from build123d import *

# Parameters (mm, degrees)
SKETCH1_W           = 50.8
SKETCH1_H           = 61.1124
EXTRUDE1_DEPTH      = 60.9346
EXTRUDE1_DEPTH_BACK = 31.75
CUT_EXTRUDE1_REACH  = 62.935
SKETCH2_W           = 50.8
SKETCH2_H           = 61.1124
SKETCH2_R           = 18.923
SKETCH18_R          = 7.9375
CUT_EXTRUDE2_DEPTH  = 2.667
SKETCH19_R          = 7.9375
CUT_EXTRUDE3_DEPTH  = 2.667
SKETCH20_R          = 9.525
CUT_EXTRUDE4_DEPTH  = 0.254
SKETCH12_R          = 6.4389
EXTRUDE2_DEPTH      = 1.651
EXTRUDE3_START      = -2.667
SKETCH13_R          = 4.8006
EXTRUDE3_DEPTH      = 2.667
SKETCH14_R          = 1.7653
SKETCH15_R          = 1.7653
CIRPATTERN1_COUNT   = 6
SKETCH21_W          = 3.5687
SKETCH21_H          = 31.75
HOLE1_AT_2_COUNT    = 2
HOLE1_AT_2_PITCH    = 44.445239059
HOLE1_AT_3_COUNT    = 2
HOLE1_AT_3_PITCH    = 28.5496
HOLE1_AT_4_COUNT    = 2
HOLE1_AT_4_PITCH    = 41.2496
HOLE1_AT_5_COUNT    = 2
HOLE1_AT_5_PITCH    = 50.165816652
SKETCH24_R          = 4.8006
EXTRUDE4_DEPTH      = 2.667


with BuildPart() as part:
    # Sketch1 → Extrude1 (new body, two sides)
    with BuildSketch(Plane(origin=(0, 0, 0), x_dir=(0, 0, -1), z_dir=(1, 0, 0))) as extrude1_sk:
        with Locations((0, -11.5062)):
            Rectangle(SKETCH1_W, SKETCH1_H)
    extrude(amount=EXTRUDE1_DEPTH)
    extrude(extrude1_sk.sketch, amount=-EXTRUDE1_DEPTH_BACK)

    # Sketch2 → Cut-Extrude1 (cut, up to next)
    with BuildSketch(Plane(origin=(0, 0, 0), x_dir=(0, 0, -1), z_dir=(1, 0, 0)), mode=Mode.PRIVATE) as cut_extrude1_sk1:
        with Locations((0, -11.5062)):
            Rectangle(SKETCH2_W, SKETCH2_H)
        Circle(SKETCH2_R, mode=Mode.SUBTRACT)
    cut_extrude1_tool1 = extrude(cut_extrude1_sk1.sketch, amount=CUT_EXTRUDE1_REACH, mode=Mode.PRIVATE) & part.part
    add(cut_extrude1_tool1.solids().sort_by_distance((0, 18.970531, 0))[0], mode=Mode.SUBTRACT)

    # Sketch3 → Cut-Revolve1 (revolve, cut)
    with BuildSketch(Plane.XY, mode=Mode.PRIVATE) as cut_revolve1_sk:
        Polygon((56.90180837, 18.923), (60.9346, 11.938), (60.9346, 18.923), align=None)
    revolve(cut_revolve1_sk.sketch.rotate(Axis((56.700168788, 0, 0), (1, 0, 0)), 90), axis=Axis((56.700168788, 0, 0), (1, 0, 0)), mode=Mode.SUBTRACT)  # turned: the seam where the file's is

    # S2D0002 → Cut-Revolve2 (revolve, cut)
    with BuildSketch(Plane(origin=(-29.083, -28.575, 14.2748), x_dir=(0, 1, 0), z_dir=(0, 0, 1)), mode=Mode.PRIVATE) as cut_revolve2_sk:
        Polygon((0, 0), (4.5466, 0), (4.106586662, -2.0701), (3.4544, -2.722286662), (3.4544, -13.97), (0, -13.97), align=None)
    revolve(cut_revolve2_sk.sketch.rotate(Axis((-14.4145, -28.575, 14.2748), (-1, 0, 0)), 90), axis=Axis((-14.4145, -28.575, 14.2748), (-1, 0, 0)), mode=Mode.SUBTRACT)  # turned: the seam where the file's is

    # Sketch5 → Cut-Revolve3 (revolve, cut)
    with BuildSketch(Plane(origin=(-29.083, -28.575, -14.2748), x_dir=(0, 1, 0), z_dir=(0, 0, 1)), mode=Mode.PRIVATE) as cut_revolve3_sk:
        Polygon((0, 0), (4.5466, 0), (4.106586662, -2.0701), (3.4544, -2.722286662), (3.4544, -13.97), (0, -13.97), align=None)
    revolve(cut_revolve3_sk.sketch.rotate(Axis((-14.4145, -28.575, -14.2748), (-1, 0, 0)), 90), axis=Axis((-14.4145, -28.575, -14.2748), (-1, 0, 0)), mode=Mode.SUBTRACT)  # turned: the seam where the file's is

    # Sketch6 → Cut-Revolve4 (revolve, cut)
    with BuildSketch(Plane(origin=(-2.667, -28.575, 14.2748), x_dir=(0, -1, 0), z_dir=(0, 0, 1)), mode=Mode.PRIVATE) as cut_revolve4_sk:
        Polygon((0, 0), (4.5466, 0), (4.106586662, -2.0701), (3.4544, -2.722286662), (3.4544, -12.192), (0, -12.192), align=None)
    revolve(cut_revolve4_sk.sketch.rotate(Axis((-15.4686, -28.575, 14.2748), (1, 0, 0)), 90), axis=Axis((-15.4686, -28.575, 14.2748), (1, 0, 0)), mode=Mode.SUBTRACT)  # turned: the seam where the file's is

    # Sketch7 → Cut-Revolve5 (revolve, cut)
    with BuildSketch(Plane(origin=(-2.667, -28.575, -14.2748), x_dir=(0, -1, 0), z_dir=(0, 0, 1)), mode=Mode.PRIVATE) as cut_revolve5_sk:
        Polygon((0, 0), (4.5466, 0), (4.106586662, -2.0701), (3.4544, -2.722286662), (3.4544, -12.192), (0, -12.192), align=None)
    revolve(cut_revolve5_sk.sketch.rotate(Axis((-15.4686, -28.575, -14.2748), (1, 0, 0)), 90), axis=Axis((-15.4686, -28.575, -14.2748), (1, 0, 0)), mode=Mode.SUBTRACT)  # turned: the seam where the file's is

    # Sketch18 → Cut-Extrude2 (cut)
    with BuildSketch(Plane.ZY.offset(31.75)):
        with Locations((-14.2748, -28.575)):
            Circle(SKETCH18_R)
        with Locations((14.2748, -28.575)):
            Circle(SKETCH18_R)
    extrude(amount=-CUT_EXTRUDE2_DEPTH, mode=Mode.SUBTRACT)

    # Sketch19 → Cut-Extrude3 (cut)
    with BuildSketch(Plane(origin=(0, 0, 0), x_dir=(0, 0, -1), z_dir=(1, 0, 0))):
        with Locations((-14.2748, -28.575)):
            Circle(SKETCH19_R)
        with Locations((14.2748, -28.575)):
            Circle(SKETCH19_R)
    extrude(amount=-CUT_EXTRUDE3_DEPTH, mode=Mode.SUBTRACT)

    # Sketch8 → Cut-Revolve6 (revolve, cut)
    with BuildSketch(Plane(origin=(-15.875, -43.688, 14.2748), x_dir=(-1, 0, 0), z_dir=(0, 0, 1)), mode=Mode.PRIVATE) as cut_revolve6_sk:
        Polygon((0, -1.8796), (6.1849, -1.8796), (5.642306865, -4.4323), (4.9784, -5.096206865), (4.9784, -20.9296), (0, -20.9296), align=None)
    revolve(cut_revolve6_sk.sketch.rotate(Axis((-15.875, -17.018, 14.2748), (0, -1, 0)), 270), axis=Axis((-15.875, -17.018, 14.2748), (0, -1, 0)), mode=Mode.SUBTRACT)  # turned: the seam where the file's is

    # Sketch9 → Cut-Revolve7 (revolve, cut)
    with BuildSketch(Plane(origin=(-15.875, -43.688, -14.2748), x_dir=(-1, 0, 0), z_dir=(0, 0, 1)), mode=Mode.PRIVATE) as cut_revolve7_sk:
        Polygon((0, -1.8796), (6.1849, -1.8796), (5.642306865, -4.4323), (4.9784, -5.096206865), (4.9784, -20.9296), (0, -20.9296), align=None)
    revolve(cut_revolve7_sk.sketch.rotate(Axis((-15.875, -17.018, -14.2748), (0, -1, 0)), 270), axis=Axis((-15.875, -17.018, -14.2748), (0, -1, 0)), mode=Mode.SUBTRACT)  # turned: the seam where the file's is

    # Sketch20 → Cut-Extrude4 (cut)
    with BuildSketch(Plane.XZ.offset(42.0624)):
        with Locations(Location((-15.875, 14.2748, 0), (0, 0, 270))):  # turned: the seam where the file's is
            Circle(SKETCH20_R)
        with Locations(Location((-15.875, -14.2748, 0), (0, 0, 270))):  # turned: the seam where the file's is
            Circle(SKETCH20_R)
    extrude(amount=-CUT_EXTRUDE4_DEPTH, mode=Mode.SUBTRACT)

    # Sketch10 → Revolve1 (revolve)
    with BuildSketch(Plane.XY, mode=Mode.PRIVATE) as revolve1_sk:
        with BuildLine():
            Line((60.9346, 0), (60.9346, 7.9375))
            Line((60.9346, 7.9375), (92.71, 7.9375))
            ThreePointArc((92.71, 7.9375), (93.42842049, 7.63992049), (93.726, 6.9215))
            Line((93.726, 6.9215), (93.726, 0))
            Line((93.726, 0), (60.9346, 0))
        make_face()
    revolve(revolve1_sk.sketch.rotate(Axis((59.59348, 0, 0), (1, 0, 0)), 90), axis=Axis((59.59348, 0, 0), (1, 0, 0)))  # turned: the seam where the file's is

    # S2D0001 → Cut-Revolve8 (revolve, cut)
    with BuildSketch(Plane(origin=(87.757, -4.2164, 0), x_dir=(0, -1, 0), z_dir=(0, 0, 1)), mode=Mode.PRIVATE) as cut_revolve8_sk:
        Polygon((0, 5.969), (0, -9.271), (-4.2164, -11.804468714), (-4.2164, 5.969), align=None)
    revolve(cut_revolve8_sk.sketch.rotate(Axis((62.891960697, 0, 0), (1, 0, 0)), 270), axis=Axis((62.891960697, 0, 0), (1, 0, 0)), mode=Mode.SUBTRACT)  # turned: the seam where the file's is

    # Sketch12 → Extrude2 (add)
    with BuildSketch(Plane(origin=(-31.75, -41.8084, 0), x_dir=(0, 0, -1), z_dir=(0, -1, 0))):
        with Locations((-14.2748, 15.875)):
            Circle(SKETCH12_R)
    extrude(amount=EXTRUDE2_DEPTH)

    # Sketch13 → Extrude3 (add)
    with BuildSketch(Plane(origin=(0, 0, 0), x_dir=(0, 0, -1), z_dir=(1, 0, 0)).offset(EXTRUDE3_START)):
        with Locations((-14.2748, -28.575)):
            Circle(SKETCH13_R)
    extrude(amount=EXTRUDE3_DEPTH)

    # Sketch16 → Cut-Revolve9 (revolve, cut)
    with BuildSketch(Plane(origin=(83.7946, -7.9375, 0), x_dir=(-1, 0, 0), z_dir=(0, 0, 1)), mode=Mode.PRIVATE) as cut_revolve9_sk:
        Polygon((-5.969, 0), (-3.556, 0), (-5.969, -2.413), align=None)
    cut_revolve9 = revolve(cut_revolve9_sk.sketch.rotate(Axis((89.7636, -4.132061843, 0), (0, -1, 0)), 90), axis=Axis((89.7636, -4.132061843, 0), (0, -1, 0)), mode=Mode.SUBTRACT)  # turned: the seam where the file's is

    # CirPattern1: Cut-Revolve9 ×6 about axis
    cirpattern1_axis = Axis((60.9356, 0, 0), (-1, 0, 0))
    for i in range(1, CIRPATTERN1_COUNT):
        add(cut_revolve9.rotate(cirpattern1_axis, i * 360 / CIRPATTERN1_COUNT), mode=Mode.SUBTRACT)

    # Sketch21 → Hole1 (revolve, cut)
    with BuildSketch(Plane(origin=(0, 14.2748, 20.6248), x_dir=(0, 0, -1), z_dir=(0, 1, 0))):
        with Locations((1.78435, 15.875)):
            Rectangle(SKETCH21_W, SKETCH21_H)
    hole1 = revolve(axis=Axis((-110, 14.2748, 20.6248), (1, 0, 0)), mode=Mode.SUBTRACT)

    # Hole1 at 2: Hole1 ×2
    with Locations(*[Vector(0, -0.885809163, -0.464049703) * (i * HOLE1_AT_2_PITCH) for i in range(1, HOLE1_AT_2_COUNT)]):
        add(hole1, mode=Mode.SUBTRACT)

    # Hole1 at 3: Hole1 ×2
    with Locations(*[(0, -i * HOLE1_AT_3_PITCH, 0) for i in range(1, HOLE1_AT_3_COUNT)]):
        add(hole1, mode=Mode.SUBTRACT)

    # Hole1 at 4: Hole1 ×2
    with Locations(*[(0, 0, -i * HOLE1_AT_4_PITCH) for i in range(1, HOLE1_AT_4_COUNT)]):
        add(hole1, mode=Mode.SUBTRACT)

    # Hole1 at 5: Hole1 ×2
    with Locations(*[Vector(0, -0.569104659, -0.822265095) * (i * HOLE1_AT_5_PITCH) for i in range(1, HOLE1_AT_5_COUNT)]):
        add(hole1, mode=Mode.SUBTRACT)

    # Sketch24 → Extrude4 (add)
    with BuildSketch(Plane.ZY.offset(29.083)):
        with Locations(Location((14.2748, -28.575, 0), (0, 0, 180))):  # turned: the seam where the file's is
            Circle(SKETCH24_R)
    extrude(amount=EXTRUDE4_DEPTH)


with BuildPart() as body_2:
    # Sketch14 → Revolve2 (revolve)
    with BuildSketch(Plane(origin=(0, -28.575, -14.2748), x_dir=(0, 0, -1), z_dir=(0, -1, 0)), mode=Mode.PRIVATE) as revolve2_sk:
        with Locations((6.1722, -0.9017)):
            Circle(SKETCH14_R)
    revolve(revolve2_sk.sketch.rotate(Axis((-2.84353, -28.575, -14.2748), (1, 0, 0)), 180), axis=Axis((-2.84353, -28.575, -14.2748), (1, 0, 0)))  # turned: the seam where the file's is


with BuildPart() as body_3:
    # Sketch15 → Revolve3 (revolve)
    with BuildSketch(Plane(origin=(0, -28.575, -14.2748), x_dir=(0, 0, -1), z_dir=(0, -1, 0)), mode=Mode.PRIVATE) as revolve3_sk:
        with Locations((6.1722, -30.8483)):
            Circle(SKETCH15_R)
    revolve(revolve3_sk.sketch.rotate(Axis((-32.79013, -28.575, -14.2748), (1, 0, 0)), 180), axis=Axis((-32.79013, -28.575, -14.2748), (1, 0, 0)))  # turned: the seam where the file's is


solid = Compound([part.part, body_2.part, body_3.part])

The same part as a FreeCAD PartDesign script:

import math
import FreeCAD as App
import Part
import Sketcher
Q = App.Units.Quantity

doc = App.newDocument("Part")
body = doc.addObject("PartDesign::Body", "Body")

sketch1 = doc.addObject("Sketcher::SketchObject", "Sketch")
body.addObject(sketch1)
sketch1.AttachmentSupport = (doc.YZ_Plane, [""])
sketch1.MapMode = "FlatFace"
sketch1.addGeometry(Part.LineSegment(App.Vector(19.05, 25.4, 0), App.Vector(-42.0624, 25.4, 0)), False)
sketch1.addGeometry(Part.LineSegment(App.Vector(-42.0624, 25.4, 0), App.Vector(-42.0624, -25.4, 0)), False)
sketch1.addGeometry(Part.LineSegment(App.Vector(-42.0624, -25.4, 0), App.Vector(19.05, -25.4, 0)), False)
sketch1.addGeometry(Part.LineSegment(App.Vector(19.05, -25.4, 0), App.Vector(19.05, 25.4, 0)), False)
sketch1.addConstraint(Sketcher.Constraint("Coincident", 0, 2, 1, 1))
sketch1.addConstraint(Sketcher.Constraint("Coincident", 1, 2, 2, 1))
sketch1.addConstraint(Sketcher.Constraint("Coincident", 2, 2, 3, 1))
sketch1.addConstraint(Sketcher.Constraint("Coincident", 3, 2, 0, 1))
sketch1.addConstraint(Sketcher.Constraint("Horizontal", 0))
sketch1.addConstraint(Sketcher.Constraint("Vertical", 1))
sketch1.addConstraint(Sketcher.Constraint("Horizontal", 2))
sketch1.addConstraint(Sketcher.Constraint("Vertical", 3))
sketch1.addConstraint(Sketcher.Constraint("DistanceY", 1, 2, 1, 1, Q("2 in")))
sketch1.addConstraint(Sketcher.Constraint("DistanceY", -1, 1, 0, 2, Q("1 in")))
sketch1.addConstraint(Sketcher.Constraint("DistanceX", 0, 2, 0, 1, Q("2.406 in")))
sketch1.addConstraint(Sketcher.Constraint("DistanceX", -1, 1, 2, 2, Q("0.75 in")))
pad1 = doc.addObject("PartDesign::Pad", "Pad")
body.addObject(pad1)
pad1.Profile = sketch1
pad1.Type = "TwoLengths"
pad1.Length = Q("2.399 in")
pad1.Length2 = Q("1.25 in")

sketch2 = doc.addObject("Sketcher::SketchObject", "Sketch001")
body.addObject(sketch2)
sketch2.AttachmentSupport = (doc.YZ_Plane, [""])
sketch2.MapMode = "FlatFace"
sketch2.addGeometry(Part.LineSegment(App.Vector(19.05, 25.4, 0), App.Vector(-42.0624, 25.4, 0)), False)
sketch2.addGeometry(Part.LineSegment(App.Vector(-42.0624, 25.4, 0), App.Vector(-42.0624, -25.4, 0)), False)
sketch2.addGeometry(Part.LineSegment(App.Vector(-42.0624, -25.4, 0), App.Vector(19.05, -25.4, 0)), False)
sketch2.addGeometry(Part.LineSegment(App.Vector(19.05, -25.4, 0), App.Vector(19.05, 25.4, 0)), False)
sketch2.addGeometry(Part.Circle(App.Vector(0, 0, 0), App.Vector(0, 0, 1), 18.923), False)
sketch2.addConstraint(Sketcher.Constraint("Coincident", 0, 2, 1, 1))
sketch2.addConstraint(Sketcher.Constraint("Coincident", 1, 2, 2, 1))
sketch2.addConstraint(Sketcher.Constraint("Coincident", 2, 2, 3, 1))
sketch2.addConstraint(Sketcher.Constraint("Coincident", 3, 2, 0, 1))
sketch2.addConstraint(Sketcher.Constraint("Horizontal", 0))
sketch2.addConstraint(Sketcher.Constraint("Vertical", 1))
sketch2.addConstraint(Sketcher.Constraint("Horizontal", 2))
sketch2.addConstraint(Sketcher.Constraint("Vertical", 3))
sketch2.addConstraint(Sketcher.Constraint("Coincident", 4, 3, -1, 1))
sketch2.addConstraint(Sketcher.Constraint("Diameter", 4, Q("1.49 in")))
sketch2.addConstraint(Sketcher.Constraint("DistanceY", 1, 2, 1, 1, Q("2 in")))
sketch2.addConstraint(Sketcher.Constraint("DistanceY", -1, 1, 0, 2, Q("1 in")))
sketch2.addConstraint(Sketcher.Constraint("DistanceX", 0, 2, 0, 1, Q("2.406 in")))
sketch2.addConstraint(Sketcher.Constraint("DistanceX", -1, 1, 2, 2, Q("0.75 in")))
pocket1 = doc.addObject("PartDesign::Pocket", "Pocket")
body.addObject(pocket1)
pocket1.Profile = sketch2
pocket1.Type = "UpToFirst"
pocket1.Reversed = True

sketch3 = doc.addObject("Sketcher::SketchObject", "Sketch002")
body.addObject(sketch3)
sketch3.AttachmentSupport = (doc.XY_Plane, [""])
sketch3.MapMode = "FlatFace"
sketch3.addGeometry(Part.LineSegment(App.Vector(56.901808, 18.923, 0), App.Vector(60.9346, 11.938, 0)), False)
sketch3.addGeometry(Part.LineSegment(App.Vector(60.9346, 11.938, 0), App.Vector(60.9346, 18.923, 0)), False)
sketch3.addGeometry(Part.LineSegment(App.Vector(60.9346, 18.923, 0), App.Vector(56.901808, 18.923, 0)), False)
sketch3.addConstraint(Sketcher.Constraint("Coincident", 0, 2, 1, 1))
sketch3.addConstraint(Sketcher.Constraint("Coincident", 1, 2, 2, 1))
sketch3.addConstraint(Sketcher.Constraint("Coincident", 2, 2, 0, 1))
sketch3.addConstraint(Sketcher.Constraint("Vertical", 1))
sketch3.addConstraint(Sketcher.Constraint("Horizontal", 2))
sketch3.addConstraint(Sketcher.Constraint("Angle", 0, Q("-60 deg")))
sketch3.addConstraint(Sketcher.Constraint("DistanceY", 1, 1, 1, 2, Q("0.275 in")))
sketch3.addConstraint(Sketcher.Constraint("DistanceY", -1, 1, 0, 2, Q("0.47 in")))
sketch3.addConstraint(Sketcher.Constraint("DistanceX", -1, 1, 0, 2, Q("2.399 in")))
groove = doc.addObject("PartDesign::Groove", "Groove")
body.addObject(groove)
groove.Profile = sketch3
groove.ReferenceAxis = (sketch3, ["H_Axis"])
groove.Angle = 360

sketch4 = doc.addObject("Sketcher::SketchObject", "Sketch003")
body.addObject(sketch4)
sketch4.AttachmentSupport = (doc.XY_Plane, [""])
sketch4.MapMode = "FlatFace"
sketch4.AttachmentOffset = App.Placement(App.Vector(0, 0, 0.562 * 25.4), App.Rotation())
sketch4.addGeometry(Part.LineSegment(App.Vector(-29.083, -24.0284, 0), App.Vector(-29.083, -28.575, 0)), False)
sketch4.addGeometry(Part.LineSegment(App.Vector(-29.083, -28.575, 0), App.Vector(-15.113, -28.575, 0)), False)
sketch4.addGeometry(Part.LineSegment(App.Vector(-15.113, -28.575, 0), App.Vector(-15.113, -25.1206, 0)), False)
sketch4.addGeometry(Part.LineSegment(App.Vector(-15.113, -25.1206, 0), App.Vector(-26.360713, -25.1206, 0)), False)
sketch4.addGeometry(Part.LineSegment(App.Vector(-26.360713, -25.1206, 0), App.Vector(-27.0129, -24.468413, 0)), False)
sketch4.addGeometry(Part.LineSegment(App.Vector(-27.0129, -24.468413, 0), App.Vector(-29.083, -24.0284, 0)), False)
sketch4.addGeometry(Part.LineSegment(App.Vector(-15.113, -28.575, 0), App.Vector(-29.083, -28.575, 0)), True)
sketch4.addConstraint(Sketcher.Constraint("Coincident", 0, 2, 1, 1))
sketch4.addConstraint(Sketcher.Constraint("Coincident", 1, 2, 2, 1))
sketch4.addConstraint(Sketcher.Constraint("Coincident", 2, 2, 3, 1))
sketch4.addConstraint(Sketcher.Constraint("Coincident", 3, 2, 4, 1))
sketch4.addConstraint(Sketcher.Constraint("Coincident", 4, 2, 5, 1))
sketch4.addConstraint(Sketcher.Constraint("Coincident", 5, 2, 0, 1))
sketch4.addConstraint(Sketcher.Constraint("Vertical", 0))
sketch4.addConstraint(Sketcher.Constraint("Horizontal", 1))
sketch4.addConstraint(Sketcher.Constraint("Vertical", 2))
sketch4.addConstraint(Sketcher.Constraint("Horizontal", 3))
sketch4.addConstraint(Sketcher.Constraint("Horizontal", 6))
sketch4.addConstraint(Sketcher.Constraint("Coincident", 6, 1, 1, 2))
sketch4.addConstraint(Sketcher.Constraint("Vertical", 5, 2, 6, 2))
sketch4.addConstraint(Sketcher.Constraint("Angle", 4, Q("135 deg")))
sketch4.addConstraint(Sketcher.Constraint("Angle", 5, Q("168 deg")))
sketch4.addConstraint(Sketcher.Constraint("DistanceX", 1, 1, 1, 2, Q("0.55 in")))
sketch4.addConstraint(Sketcher.Constraint("DistanceY", 0, 2, 0, 1, Q("0.179 in")))
sketch4.addConstraint(Sketcher.Constraint("DistanceY", 2, 1, 2, 2, Q("0.136 in")))
sketch4.addConstraint(Sketcher.Constraint("DistanceX", 0, 2, -1, 1, Q("1.145 in")))
sketch4.addConstraint(Sketcher.Constraint("DistanceY", 0, 2, -1, 1, Q("1.125 in")))
sketch4.addConstraint(Sketcher.Constraint("DistanceX", 4, 2, -1, 1, Q("1.0635 in")))
groove2 = doc.addObject("PartDesign::Groove", "Groove001")
body.addObject(groove2)
groove2.Profile = sketch4
groove2.ReferenceAxis = (sketch4, ["Axis0"])
groove2.Angle = 360

sketch5 = doc.addObject("Sketcher::SketchObject", "Sketch004")
body.addObject(sketch5)
sketch5.AttachmentSupport = (doc.XY_Plane, [""])
sketch5.MapMode = "FlatFace"
sketch5.AttachmentOffset = App.Placement(App.Vector(0, 0, -0.562 * 25.4), App.Rotation())
sketch5.addGeometry(Part.LineSegment(App.Vector(-29.083, -24.0284, 0), App.Vector(-29.083, -28.575, 0)), False)
sketch5.addGeometry(Part.LineSegment(App.Vector(-29.083, -28.575, 0), App.Vector(-15.113, -28.575, 0)), False)
sketch5.addGeometry(Part.LineSegment(App.Vector(-15.113, -28.575, 0), App.Vector(-15.113, -25.1206, 0)), False)
sketch5.addGeometry(Part.LineSegment(App.Vector(-15.113, -25.1206, 0), App.Vector(-26.360713, -25.1206, 0)), False)
sketch5.addGeometry(Part.LineSegment(App.Vector(-26.360713, -25.1206, 0), App.Vector(-27.0129, -24.468413, 0)), False)
sketch5.addGeometry(Part.LineSegment(App.Vector(-27.0129, -24.468413, 0), App.Vector(-29.083, -24.0284, 0)), False)
sketch5.addGeometry(Part.LineSegment(App.Vector(-15.113, -28.575, 0), App.Vector(-29.083, -28.575, 0)), True)
sketch5.addConstraint(Sketcher.Constraint("Coincident", 0, 2, 1, 1))
sketch5.addConstraint(Sketcher.Constraint("Coincident", 1, 2, 2, 1))
sketch5.addConstraint(Sketcher.Constraint("Coincident", 2, 2, 3, 1))
sketch5.addConstraint(Sketcher.Constraint("Coincident", 3, 2, 4, 1))
sketch5.addConstraint(Sketcher.Constraint("Coincident", 4, 2, 5, 1))
sketch5.addConstraint(Sketcher.Constraint("Coincident", 5, 2, 0, 1))
sketch5.addConstraint(Sketcher.Constraint("Vertical", 0))
sketch5.addConstraint(Sketcher.Constraint("Horizontal", 1))
sketch5.addConstraint(Sketcher.Constraint("Vertical", 2))
sketch5.addConstraint(Sketcher.Constraint("Horizontal", 3))
sketch5.addConstraint(Sketcher.Constraint("Horizontal", 6))
sketch5.addConstraint(Sketcher.Constraint("Coincident", 6, 1, 1, 2))
sketch5.addConstraint(Sketcher.Constraint("Vertical", 5, 2, 6, 2))
sketch5.addConstraint(Sketcher.Constraint("Angle", 4, Q("135 deg")))
sketch5.addConstraint(Sketcher.Constraint("Angle", 5, Q("168 deg")))
sketch5.addConstraint(Sketcher.Constraint("DistanceX", 1, 1, 1, 2, Q("0.55 in")))
sketch5.addConstraint(Sketcher.Constraint("DistanceY", 0, 2, 0, 1, Q("0.179 in")))
sketch5.addConstraint(Sketcher.Constraint("DistanceY", 2, 1, 2, 2, Q("0.136 in")))
sketch5.addConstraint(Sketcher.Constraint("DistanceX", 0, 2, -1, 1, Q("1.145 in")))
sketch5.addConstraint(Sketcher.Constraint("DistanceY", 0, 2, -1, 1, Q("1.125 in")))
sketch5.addConstraint(Sketcher.Constraint("DistanceX", 4, 2, -1, 1, Q("1.0635 in")))
groove3 = doc.addObject("PartDesign::Groove", "Groove002")
body.addObject(groove3)
groove3.Profile = sketch5
groove3.ReferenceAxis = (sketch5, ["Axis0"])
groove3.Angle = 360

sketch6 = doc.addObject("Sketcher::SketchObject", "Sketch005")
body.addObject(sketch6)
sketch6.AttachmentSupport = (doc.XY_Plane, [""])
sketch6.MapMode = "FlatFace"
sketch6.AttachmentOffset = App.Placement(App.Vector(0, 0, 0.562 * 25.4), App.Rotation())
sketch6.addGeometry(Part.LineSegment(App.Vector(-2.667, -33.1216, 0), App.Vector(-2.667, -28.575, 0)), False)
sketch6.addGeometry(Part.LineSegment(App.Vector(-2.667, -28.575, 0), App.Vector(-14.859, -28.575, 0)), False)
sketch6.addGeometry(Part.LineSegment(App.Vector(-14.859, -28.575, 0), App.Vector(-14.859, -32.0294, 0)), False)
sketch6.addGeometry(Part.LineSegment(App.Vector(-14.859, -32.0294, 0), App.Vector(-5.389287, -32.0294, 0)), False)
sketch6.addGeometry(Part.LineSegment(App.Vector(-5.389287, -32.0294, 0), App.Vector(-4.7371, -32.681587, 0)), False)
sketch6.addGeometry(Part.LineSegment(App.Vector(-4.7371, -32.681587, 0), App.Vector(-2.667, -33.1216, 0)), False)
sketch6.addGeometry(Part.LineSegment(App.Vector(-14.859, -28.575, 0), App.Vector(-2.667, -28.575, 0)), True)
sketch6.addConstraint(Sketcher.Constraint("Coincident", 0, 2, 1, 1))
sketch6.addConstraint(Sketcher.Constraint("Coincident", 1, 2, 2, 1))
sketch6.addConstraint(Sketcher.Constraint("Coincident", 2, 2, 3, 1))
sketch6.addConstraint(Sketcher.Constraint("Coincident", 3, 2, 4, 1))
sketch6.addConstraint(Sketcher.Constraint("Coincident", 4, 2, 5, 1))
sketch6.addConstraint(Sketcher.Constraint("Coincident", 5, 2, 0, 1))
sketch6.addConstraint(Sketcher.Constraint("Vertical", 0))
sketch6.addConstraint(Sketcher.Constraint("Horizontal", 1))
sketch6.addConstraint(Sketcher.Constraint("Vertical", 2))
sketch6.addConstraint(Sketcher.Constraint("Horizontal", 3))
sketch6.addConstraint(Sketcher.Constraint("Horizontal", 6))
sketch6.addConstraint(Sketcher.Constraint("Coincident", 6, 1, 1, 2))
sketch6.addConstraint(Sketcher.Constraint("Vertical", 5, 2, 6, 2))
sketch6.addConstraint(Sketcher.Constraint("Angle", 4, Q("-45 deg")))
sketch6.addConstraint(Sketcher.Constraint("Angle", 5, Q("-12 deg")))
sketch6.addConstraint(Sketcher.Constraint("DistanceX", 1, 2, 1, 1, Q("0.48 in")))
sketch6.addConstraint(Sketcher.Constraint("DistanceY", 0, 1, 0, 2, Q("0.179 in")))
sketch6.addConstraint(Sketcher.Constraint("DistanceY", 2, 2, 2, 1, Q("0.136 in")))
sketch6.addConstraint(Sketcher.Constraint("DistanceX", 0, 2, -1, 1, Q("0.105 in")))
sketch6.addConstraint(Sketcher.Constraint("DistanceY", 0, 2, -1, 1, Q("1.125 in")))
sketch6.addConstraint(Sketcher.Constraint("DistanceX", 4, 2, -1, 1, Q("0.1865 in")))
groove4 = doc.addObject("PartDesign::Groove", "Groove003")
body.addObject(groove4)
groove4.Profile = sketch6
groove4.ReferenceAxis = (sketch6, ["Axis0"])
groove4.Angle = 360

sketch7 = doc.addObject("Sketcher::SketchObject", "Sketch006")
body.addObject(sketch7)
sketch7.AttachmentSupport = (doc.XY_Plane, [""])
sketch7.MapMode = "FlatFace"
sketch7.AttachmentOffset = App.Placement(App.Vector(0, 0, -0.562 * 25.4), App.Rotation())
sketch7.addGeometry(Part.LineSegment(App.Vector(-2.667, -33.1216, 0), App.Vector(-2.667, -28.575, 0)), False)
sketch7.addGeometry(Part.LineSegment(App.Vector(-2.667, -28.575, 0), App.Vector(-14.859, -28.575, 0)), False)
sketch7.addGeometry(Part.LineSegment(App.Vector(-14.859, -28.575, 0), App.Vector(-14.859, -32.0294, 0)), False)
sketch7.addGeometry(Part.LineSegment(App.Vector(-14.859, -32.0294, 0), App.Vector(-5.389287, -32.0294, 0)), False)
sketch7.addGeometry(Part.LineSegment(App.Vector(-5.389287, -32.0294, 0), App.Vector(-4.7371, -32.681587, 0)), False)
sketch7.addGeometry(Part.LineSegment(App.Vector(-4.7371, -32.681587, 0), App.Vector(-2.667, -33.1216, 0)), False)
sketch7.addGeometry(Part.LineSegment(App.Vector(-14.859, -28.575, 0), App.Vector(-2.667, -28.575, 0)), True)
sketch7.addConstraint(Sketcher.Constraint("Coincident", 0, 2, 1, 1))
sketch7.addConstraint(Sketcher.Constraint("Coincident", 1, 2, 2, 1))
sketch7.addConstraint(Sketcher.Constraint("Coincident", 2, 2, 3, 1))
sketch7.addConstraint(Sketcher.Constraint("Coincident", 3, 2, 4, 1))
sketch7.addConstraint(Sketcher.Constraint("Coincident", 4, 2, 5, 1))
sketch7.addConstraint(Sketcher.Constraint("Coincident", 5, 2, 0, 1))
sketch7.addConstraint(Sketcher.Constraint("Vertical", 0))
sketch7.addConstraint(Sketcher.Constraint("Horizontal", 1))
sketch7.addConstraint(Sketcher.Constraint("Vertical", 2))
sketch7.addConstraint(Sketcher.Constraint("Horizontal", 3))
sketch7.addConstraint(Sketcher.Constraint("Horizontal", 6))
sketch7.addConstraint(Sketcher.Constraint("Coincident", 6, 1, 1, 2))
sketch7.addConstraint(Sketcher.Constraint("Vertical", 5, 2, 6, 2))
sketch7.addConstraint(Sketcher.Constraint("Angle", 4, Q("-45 deg")))
sketch7.addConstraint(Sketcher.Constraint("Angle", 5, Q("-12 deg")))
sketch7.addConstraint(Sketcher.Constraint("DistanceX", 1, 2, 1, 1, Q("0.48 in")))
sketch7.addConstraint(Sketcher.Constraint("DistanceY", 0, 1, 0, 2, Q("0.179 in")))
sketch7.addConstraint(Sketcher.Constraint("DistanceY", 2, 2, 2, 1, Q("0.136 in")))
sketch7.addConstraint(Sketcher.Constraint("DistanceX", 0, 2, -1, 1, Q("0.105 in")))
sketch7.addConstraint(Sketcher.Constraint("DistanceY", 0, 2, -1, 1, Q("1.125 in")))
sketch7.addConstraint(Sketcher.Constraint("DistanceX", 4, 2, -1, 1, Q("0.1865 in")))
groove5 = doc.addObject("PartDesign::Groove", "Groove004")
body.addObject(groove5)
groove5.Profile = sketch7
groove5.ReferenceAxis = (sketch7, ["Axis0"])
groove5.Angle = 360

sketch8 = doc.addObject("Sketcher::SketchObject", "Sketch007")
body.addObject(sketch8)
sketch8.AttachmentSupport = (doc.YZ_Plane, [""])
sketch8.MapMode = "FlatFace"
sketch8.AttachmentOffset = App.Placement(App.Vector(0, 0, -1.25 * 25.4), App.Rotation())
sketch8.addGeometry(Part.Circle(App.Vector(-28.575, -14.2748, 0), App.Vector(0, 0, 1), 7.9375), False)
sketch8.addGeometry(Part.Circle(App.Vector(-28.575, 14.2748, 0), App.Vector(0, 0, 1), 7.9375), False)
sketch8.addConstraint(Sketcher.Constraint("Equal", 0, 1))
sketch8.addConstraint(Sketcher.Constraint("Symmetric", 0, 3, 1, 3, -1))
sketch8.addConstraint(Sketcher.Constraint("Diameter", 0, Q("0.625 in")))
sketch8.addConstraint(Sketcher.Constraint("DistanceX", 0, 3, -1, 1, Q("1.125 in")))
sketch8.addConstraint(Sketcher.Constraint("DistanceY", 0, 3, -1, 1, Q("0.562 in")))
pocket2 = doc.addObject("PartDesign::Pocket", "Pocket001")
body.addObject(pocket2)
pocket2.Profile = sketch8
pocket2.Length = Q("0.105 in")
pocket2.Reversed = True

sketch9 = doc.addObject("Sketcher::SketchObject", "Sketch008")
body.addObject(sketch9)
sketch9.AttachmentSupport = (doc.YZ_Plane, [""])
sketch9.MapMode = "FlatFace"
sketch9.addGeometry(Part.Circle(App.Vector(-28.575, 14.2748, 0), App.Vector(0, 0, 1), 7.9375), False)
sketch9.addGeometry(Part.Circle(App.Vector(-28.575, -14.2748, 0), App.Vector(0, 0, 1), 7.9375), False)
sketch9.addConstraint(Sketcher.Constraint("Equal", 0, 1))
sketch9.addConstraint(Sketcher.Constraint("Symmetric", 0, 3, 1, 3, -1))
sketch9.addConstraint(Sketcher.Constraint("Diameter", 0, Q("0.625 in")))
sketch9.addConstraint(Sketcher.Constraint("DistanceX", 0, 3, -1, 1, Q("1.125 in")))
sketch9.addConstraint(Sketcher.Constraint("DistanceY", -1, 1, 0, 3, Q("0.562 in")))
pocket3 = doc.addObject("PartDesign::Pocket", "Pocket002")
body.addObject(pocket3)
pocket3.Profile = sketch9
pocket3.Length = Q("0.105 in")

sketch10 = doc.addObject("Sketcher::SketchObject", "Sketch009")
body.addObject(sketch10)
sketch10.AttachmentSupport = (doc.XY_Plane, [""])
sketch10.MapMode = "FlatFace"
sketch10.AttachmentOffset = App.Placement(App.Vector(0, 0, 0.562 * 25.4), App.Rotation())
sketch10.addGeometry(Part.LineSegment(App.Vector(-22.0599, -41.8084, 0), App.Vector(-15.875, -41.8084, 0)), False)
sketch10.addGeometry(Part.LineSegment(App.Vector(-15.875, -41.8084, 0), App.Vector(-15.875, -22.7584, 0)), False)
sketch10.addGeometry(Part.LineSegment(App.Vector(-15.875, -22.7584, 0), App.Vector(-20.8534, -22.7584, 0)), False)
sketch10.addGeometry(Part.LineSegment(App.Vector(-20.8534, -22.7584, 0), App.Vector(-20.8534, -38.591793, 0)), False)
sketch10.addGeometry(Part.LineSegment(App.Vector(-20.8534, -38.591793, 0), App.Vector(-21.517307, -39.2557, 0)), False)
sketch10.addGeometry(Part.LineSegment(App.Vector(-21.517307, -39.2557, 0), App.Vector(-22.0599, -41.8084, 0)), False)
sketch10.addGeometry(Part.LineSegment(App.Vector(-15.875, -22.7584, 0), App.Vector(-15.875, -41.8084, 0)), True)
sketch10.addConstraint(Sketcher.Constraint("Coincident", 0, 2, 1, 1))
sketch10.addConstraint(Sketcher.Constraint("Coincident", 1, 2, 2, 1))
sketch10.addConstraint(Sketcher.Constraint("Coincident", 2, 2, 3, 1))
sketch10.addConstraint(Sketcher.Constraint("Coincident", 3, 2, 4, 1))
sketch10.addConstraint(Sketcher.Constraint("Coincident", 4, 2, 5, 1))
sketch10.addConstraint(Sketcher.Constraint("Coincident", 5, 2, 0, 1))
sketch10.addConstraint(Sketcher.Constraint("Horizontal", 0))
sketch10.addConstraint(Sketcher.Constraint("Vertical", 1))
sketch10.addConstraint(Sketcher.Constraint("Horizontal", 2))
sketch10.addConstraint(Sketcher.Constraint("Vertical", 3))
sketch10.addConstraint(Sketcher.Constraint("Vertical", 6))
sketch10.addConstraint(Sketcher.Constraint("Coincident", 6, 1, 1, 2))
sketch10.addConstraint(Sketcher.Constraint("Horizontal", 5, 2, 6, 2))
sketch10.addConstraint(Sketcher.Constraint("Angle", 4, Q("-135 deg")))
sketch10.addConstraint(Sketcher.Constraint("Angle", 5, Q("-102 deg")))
sketch10.addConstraint(Sketcher.Constraint("DistanceY", 1, 1, 1, 2, Q("0.75 in")))
sketch10.addConstraint(Sketcher.Constraint("DistanceX", 2, 2, 2, 1, Q("0.196 in")))
sketch10.addConstraint(Sketcher.Constraint("DistanceX", 0, 1, 0, 2, Q("0.2435 in")))
sketch10.addConstraint(Sketcher.Constraint("DistanceX", 0, 2, -1, 1, Q("0.625 in")))
sketch10.addConstraint(Sketcher.Constraint("DistanceY", 0, 2, -1, 1, Q("1.646 in")))
sketch10.addConstraint(Sketcher.Constraint("DistanceY", 4, 2, -1, 1, Q("1.5455 in")))
groove6 = doc.addObject("PartDesign::Groove", "Groove005")
body.addObject(groove6)
groove6.Profile = sketch10
groove6.ReferenceAxis = (sketch10, ["Axis0"])
groove6.Angle = 360

sketch11 = doc.addObject("Sketcher::SketchObject", "Sketch010")
body.addObject(sketch11)
sketch11.AttachmentSupport = (doc.XY_Plane, [""])
sketch11.MapMode = "FlatFace"
sketch11.AttachmentOffset = App.Placement(App.Vector(0, 0, -0.562 * 25.4), App.Rotation())
sketch11.addGeometry(Part.LineSegment(App.Vector(-22.0599, -41.8084, 0), App.Vector(-15.875, -41.8084, 0)), False)
sketch11.addGeometry(Part.LineSegment(App.Vector(-15.875, -41.8084, 0), App.Vector(-15.875, -22.7584, 0)), False)
sketch11.addGeometry(Part.LineSegment(App.Vector(-15.875, -22.7584, 0), App.Vector(-20.8534, -22.7584, 0)), False)
sketch11.addGeometry(Part.LineSegment(App.Vector(-20.8534, -22.7584, 0), App.Vector(-20.8534, -38.591793, 0)), False)
sketch11.addGeometry(Part.LineSegment(App.Vector(-20.8534, -38.591793, 0), App.Vector(-21.517307, -39.2557, 0)), False)
sketch11.addGeometry(Part.LineSegment(App.Vector(-21.517307, -39.2557, 0), App.Vector(-22.0599, -41.8084, 0)), False)
sketch11.addGeometry(Part.LineSegment(App.Vector(-15.875, -22.7584, 0), App.Vector(-15.875, -41.8084, 0)), True)
sketch11.addConstraint(Sketcher.Constraint("Coincident", 0, 2, 1, 1))
sketch11.addConstraint(Sketcher.Constraint("Coincident", 1, 2, 2, 1))
sketch11.addConstraint(Sketcher.Constraint("Coincident", 2, 2, 3, 1))
sketch11.addConstraint(Sketcher.Constraint("Coincident", 3, 2, 4, 1))
sketch11.addConstraint(Sketcher.Constraint("Coincident", 4, 2, 5, 1))
sketch11.addConstraint(Sketcher.Constraint("Coincident", 5, 2, 0, 1))
sketch11.addConstraint(Sketcher.Constraint("Horizontal", 0))
sketch11.addConstraint(Sketcher.Constraint("Vertical", 1))
sketch11.addConstraint(Sketcher.Constraint("Horizontal", 2))
sketch11.addConstraint(Sketcher.Constraint("Vertical", 3))
sketch11.addConstraint(Sketcher.Constraint("Vertical", 6))
sketch11.addConstraint(Sketcher.Constraint("Coincident", 6, 1, 1, 2))
sketch11.addConstraint(Sketcher.Constraint("Horizontal", 5, 2, 6, 2))
sketch11.addConstraint(Sketcher.Constraint("Angle", 4, Q("-135 deg")))
sketch11.addConstraint(Sketcher.Constraint("Angle", 5, Q("-102 deg")))
sketch11.addConstraint(Sketcher.Constraint("DistanceY", 1, 1, 1, 2, Q("0.75 in")))
sketch11.addConstraint(Sketcher.Constraint("DistanceX", 2, 2, 2, 1, Q("0.196 in")))
sketch11.addConstraint(Sketcher.Constraint("DistanceX", 0, 1, 0, 2, Q("0.2435 in")))
sketch11.addConstraint(Sketcher.Constraint("DistanceX", 0, 2, -1, 1, Q("0.625 in")))
sketch11.addConstraint(Sketcher.Constraint("DistanceY", 0, 2, -1, 1, Q("1.646 in")))
sketch11.addConstraint(Sketcher.Constraint("DistanceY", 4, 2, -1, 1, Q("1.5455 in")))
groove7 = doc.addObject("PartDesign::Groove", "Groove006")
body.addObject(groove7)
groove7.Profile = sketch11
groove7.ReferenceAxis = (sketch11, ["Axis0"])
groove7.Angle = 360

sketch12 = doc.addObject("Sketcher::SketchObject", "Sketch011")
body.addObject(sketch12)
sketch12.AttachmentSupport = (doc.XZ_Plane, [""])
sketch12.MapMode = "FlatFace"
sketch12.AttachmentOffset = App.Placement(App.Vector(0, 0, 1.656 * 25.4), App.Rotation())
sketch12.addGeometry(Part.Circle(App.Vector(-15.875, 14.2748, 0), App.Vector(0, 0, 1), 9.525), False)
sketch12.addGeometry(Part.Circle(App.Vector(-15.875, -14.2748, 0), App.Vector(0, 0, 1), 9.525), False)
sketch12.addConstraint(Sketcher.Constraint("Equal", 0, 1))
sketch12.addConstraint(Sketcher.Constraint("Symmetric", 0, 3, 1, 3, -1))
sketch12.addConstraint(Sketcher.Constraint("Diameter", 0, Q("0.75 in")))
sketch12.addConstraint(Sketcher.Constraint("DistanceX", 0, 3, -1, 1, Q("0.625 in")))
sketch12.addConstraint(Sketcher.Constraint("DistanceY", -1, 1, 0, 3, Q("0.562 in")))
pocket4 = doc.addObject("PartDesign::Pocket", "Pocket003")
body.addObject(pocket4)
pocket4.Profile = sketch12
pocket4.Length = Q("0.01 in")

sketch13 = doc.addObject("Sketcher::SketchObject", "Sketch012")
body.addObject(sketch13)
sketch13.AttachmentSupport = (doc.XY_Plane, [""])
sketch13.MapMode = "FlatFace"
sketch13.addGeometry(Part.LineSegment(App.Vector(60.9346, 7.9375, 0), App.Vector(60.9346, 0, 0)), False)
sketch13.addGeometry(Part.LineSegment(App.Vector(60.9346, 0, 0), App.Vector(93.726, 0, 0)), False)
sketch13.addGeometry(Part.LineSegment(App.Vector(93.726, 0, 0), App.Vector(93.726, 6.9215, 0)), False)
sketch13.addGeometry(Part.ArcOfCircle(Part.Circle(App.Vector(92.71, 6.9215, 0), App.Vector(0, 0, 1), 1.016), math.radians(0), math.radians(90)), False)
sketch13.addGeometry(Part.LineSegment(App.Vector(92.71, 7.9375, 0), App.Vector(60.9346, 7.9375, 0)), False)
sketch13.addConstraint(Sketcher.Constraint("Coincident", 0, 2, 1, 1))
sketch13.addConstraint(Sketcher.Constraint("Coincident", 1, 2, 2, 1))
sketch13.addConstraint(Sketcher.Constraint("Tangent", 2, 2, 3, 1))
sketch13.addConstraint(Sketcher.Constraint("Tangent", 3, 2, 4, 1))
sketch13.addConstraint(Sketcher.Constraint("Coincident", 4, 2, 0, 1))
sketch13.addConstraint(Sketcher.Constraint("Vertical", 0))
sketch13.addConstraint(Sketcher.Constraint("Horizontal", 1))
sketch13.addConstraint(Sketcher.Constraint("Vertical", 2))
sketch13.addConstraint(Sketcher.Constraint("Horizontal", 4))
sketch13.addConstraint(Sketcher.Constraint("PointOnObject", 0, 2, -1))
sketch13.addConstraint(Sketcher.Constraint("Radius", 3, Q("0.04 in")))
sketch13.addConstraint(Sketcher.Constraint("DistanceX", 1, 1, 1, 2, Q("1.291 in")))
sketch13.addConstraint(Sketcher.Constraint("DistanceY", 0, 2, 0, 1, Q("0.3125 in")))
sketch13.addConstraint(Sketcher.Constraint("DistanceX", -1, 1, 3, 3, Q("3.65 in")))
revolution = doc.addObject("PartDesign::Revolution", "Revolution")
body.addObject(revolution)
revolution.Profile = sketch13
revolution.ReferenceAxis = (sketch13, ["H_Axis"])
revolution.Angle = 360

sketch14 = doc.addObject("Sketcher::SketchObject", "Sketch013")
body.addObject(sketch14)
sketch14.AttachmentSupport = (doc.XY_Plane, [""])
sketch14.MapMode = "FlatFace"
sketch14.addGeometry(Part.LineSegment(App.Vector(78.486, -4.2164, 0), App.Vector(93.726, -4.2164, 0)), False)
sketch14.addGeometry(Part.LineSegment(App.Vector(93.726, -4.2164, 0), App.Vector(93.726, 0, 0)), False)
sketch14.addGeometry(Part.LineSegment(App.Vector(93.726, 0, 0), App.Vector(75.952531, 0, 0)), False)
sketch14.addGeometry(Part.LineSegment(App.Vector(75.952531, 0, 0), App.Vector(78.486, -4.2164, 0)), False)
sketch14.addConstraint(Sketcher.Constraint("Coincident", 0, 2, 1, 1))
sketch14.addConstraint(Sketcher.Constraint("Coincident", 1, 2, 2, 1))
sketch14.addConstraint(Sketcher.Constraint("Coincident", 2, 2, 3, 1))
sketch14.addConstraint(Sketcher.Constraint("Coincident", 3, 2, 0, 1))
sketch14.addConstraint(Sketcher.Constraint("Horizontal", 0))
sketch14.addConstraint(Sketcher.Constraint("Vertical", 1))
sketch14.addConstraint(Sketcher.Constraint("Horizontal", 2))
sketch14.addConstraint(Sketcher.Constraint("PointOnObject", 1, 2, -1))
sketch14.addConstraint(Sketcher.Constraint("DistanceX", 0, 1, 0, 2, Q("0.6 in")))
sketch14.addConstraint(Sketcher.Constraint("Angle", 3, Q("-59 deg")))
sketch14.addConstraint(Sketcher.Constraint("DistanceY", 1, 1, 1, 2, Q("0.166 in")))
sketch14.addConstraint(Sketcher.Constraint("DistanceX", -1, 1, 0, 2, Q("3.69 in")))
groove8 = doc.addObject("PartDesign::Groove", "Groove007")
body.addObject(groove8)
groove8.Profile = sketch14
groove8.ReferenceAxis = (sketch14, ["H_Axis"])
groove8.Angle = 360

sketch15 = doc.addObject("Sketcher::SketchObject", "Sketch014")
body.addObject(sketch15)
sketch15.AttachmentSupport = (doc.XZ_Plane, [""])
sketch15.MapMode = "FlatFace"
sketch15.AttachmentOffset = App.Placement(App.Vector(0, 0, 1.646 * 25.4), App.Rotation())
sketch15.addGeometry(Part.Circle(App.Vector(-15.875, 14.2748, 0), App.Vector(0, 0, 1), 6.4389), False)
sketch15.addConstraint(Sketcher.Constraint("Diameter", 0, Q("0.507 in")))
sketch15.addConstraint(Sketcher.Constraint("DistanceX", 0, 3, -1, 1, Q("0.625 in")))
sketch15.addConstraint(Sketcher.Constraint("DistanceY", -1, 1, 0, 3, Q("0.562 in")))
pad2 = doc.addObject("PartDesign::Pad", "Pad001")
body.addObject(pad2)
pad2.Profile = sketch15
pad2.Length = Q("0.065 in")

sketch16 = doc.addObject("Sketcher::SketchObject", "Sketch015")
body.addObject(sketch16)
sketch16.AttachmentSupport = (doc.YZ_Plane, [""])
sketch16.MapMode = "FlatFace"
sketch16.AttachmentOffset = App.Placement(App.Vector(0, 0, -0.105 * 25.4), App.Rotation())
sketch16.addGeometry(Part.Circle(App.Vector(-28.575, 14.2748, 0), App.Vector(0, 0, 1), 4.8006), False)
sketch16.addConstraint(Sketcher.Constraint("Diameter", 0, Q("0.378 in")))
sketch16.addConstraint(Sketcher.Constraint("DistanceX", 0, 3, -1, 1, Q("1.125 in")))
sketch16.addConstraint(Sketcher.Constraint("DistanceY", -1, 1, 0, 3, Q("0.562 in")))
pad3 = doc.addObject("PartDesign::Pad", "Pad002")
body.addObject(pad3)
pad3.Profile = sketch16
pad3.Length = Q("0.105 in")

sketch17 = doc.addObject("Sketcher::SketchObject", "Sketch016")
body.addObject(sketch17)
sketch17.AttachmentSupport = (doc.XY_Plane, [""])
sketch17.MapMode = "FlatFace"
sketch17.addGeometry(Part.LineSegment(App.Vector(87.3506, -7.9375, 0), App.Vector(89.7636, -7.9375, 0)), False)
sketch17.addGeometry(Part.LineSegment(App.Vector(89.7636, -7.9375, 0), App.Vector(89.7636, -5.5245, 0)), False)
sketch17.addGeometry(Part.LineSegment(App.Vector(89.7636, -5.5245, 0), App.Vector(87.3506, -7.9375, 0)), False)
sketch17.addGeometry(Part.LineSegment(App.Vector(89.7636, -5.5245, 0), App.Vector(89.7636, -7.9375, 0)), True)
sketch17.addConstraint(Sketcher.Constraint("Coincident", 0, 2, 1, 1))
sketch17.addConstraint(Sketcher.Constraint("Coincident", 1, 2, 2, 1))
sketch17.addConstraint(Sketcher.Constraint("Coincident", 2, 2, 0, 1))
sketch17.addConstraint(Sketcher.Constraint("Horizontal", 0))
sketch17.addConstraint(Sketcher.Constraint("Vertical", 1))
sketch17.addConstraint(Sketcher.Constraint("Vertical", 3))
sketch17.addConstraint(Sketcher.Constraint("Coincident", 3, 1, 1, 2))
sketch17.addConstraint(Sketcher.Constraint("Horizontal", 2, 2, 3, 2))
sketch17.addConstraint(Sketcher.Constraint("Equal", 0, 1))
sketch17.addConstraint(Sketcher.Constraint("DistanceX", 0, 1, 0, 2, Q("0.095 in")))
sketch17.addConstraint(Sketcher.Constraint("DistanceX", -1, 1, 0, 2, Q("3.534 in")))
sketch17.addConstraint(Sketcher.Constraint("DistanceY", 0, 2, -1, 1, Q("0.3125 in")))
groove9 = doc.addObject("PartDesign::Groove", "Groove008")
body.addObject(groove9)
groove9.Profile = sketch17
groove9.ReferenceAxis = (sketch17, ["Axis0"])
groove9.Angle = 360
doc.recompute()

polarpattern = doc.addObject("PartDesign::PolarPattern", "PolarPattern")
body.addObject(polarpattern)
polarpattern.Originals = [groove9]
polarpattern.Axis = (doc.X_Axis, [""])
polarpattern.Angle = 360
polarpattern.Occurrences = 6
body.Tip = polarpattern

sketch18 = doc.addObject("Sketcher::SketchObject", "Sketch017")
body.addObject(sketch18)
sketch18.AttachmentSupport = (doc.XZ_Plane, [""])
sketch18.MapMode = "FlatFace"
sketch18.AttachmentOffset = App.Placement(App.Vector(0, 0, -0.562 * 25.4), App.Rotation())
sketch18.addGeometry(Part.LineSegment(App.Vector(-31.75, 20.6248, 0), App.Vector(0, 20.6248, 0)), False)
sketch18.addGeometry(Part.LineSegment(App.Vector(0, 20.6248, 0), App.Vector(0, 17.0561, 0)), False)
sketch18.addGeometry(Part.LineSegment(App.Vector(0, 17.0561, 0), App.Vector(-31.75, 17.0561, 0)), False)
sketch18.addGeometry(Part.LineSegment(App.Vector(-31.75, 17.0561, 0), App.Vector(-31.75, 20.6248, 0)), False)
sketch18.addGeometry(Part.LineSegment(App.Vector(-31.75, 20.6248, 0), App.Vector(0, 20.6248, 0)), True)
sketch18.addConstraint(Sketcher.Constraint("Coincident", 0, 2, 1, 1))
sketch18.addConstraint(Sketcher.Constraint("Coincident", 1, 2, 2, 1))
sketch18.addConstraint(Sketcher.Constraint("Coincident", 2, 2, 3, 1))
sketch18.addConstraint(Sketcher.Constraint("Coincident", 3, 2, 0, 1))
sketch18.addConstraint(Sketcher.Constraint("Horizontal", 0))
sketch18.addConstraint(Sketcher.Constraint("Vertical", 1))
sketch18.addConstraint(Sketcher.Constraint("Horizontal", 2))
sketch18.addConstraint(Sketcher.Constraint("Vertical", 3))
sketch18.addConstraint(Sketcher.Constraint("Horizontal", 4))
sketch18.addConstraint(Sketcher.Constraint("Coincident", 4, 1, 3, 2))
sketch18.addConstraint(Sketcher.Constraint("PointOnObject", 0, 2, -2))
sketch18.addConstraint(Sketcher.Constraint("PointOnObject", 4, 2, -2))
sketch18.addConstraint(Sketcher.Constraint("DistanceX", 0, 1, 0, 2, Q("1.25 in")))
sketch18.addConstraint(Sketcher.Constraint("DistanceY", 1, 2, 1, 1, Q("0.1405 in")))
sketch18.addConstraint(Sketcher.Constraint("DistanceY", -1, 1, 0, 2, Q("0.812 in")))
groove10 = doc.addObject("PartDesign::Groove", "Groove009")
body.addObject(groove10)
groove10.Profile = sketch18
groove10.ReferenceAxis = (sketch18, ["Axis0"])
groove10.Angle = 360
doc.recompute()

datumline = doc.addObject("PartDesign::Line", "DatumLine")
body.addObject(datumline)
datumline.Placement = App.Placement(App.Vector(0, 0, 0), App.Rotation(App.Vector(0, 0, 1), App.Vector(0, -0.885809163, -0.464049703)))
linearpattern = doc.addObject("PartDesign::LinearPattern", "LinearPattern")
body.addObject(linearpattern)
linearpattern.Originals = [groove10]
linearpattern.Direction = (datumline, [""])
linearpattern.Mode = "offset"
linearpattern.Offset = 44.445239
linearpattern.Occurrences = 2
body.Tip = linearpattern
doc.recompute()

linearpattern2 = doc.addObject("PartDesign::LinearPattern", "LinearPattern001")
body.addObject(linearpattern2)
linearpattern2.Originals = [groove10]
linearpattern2.Direction = (doc.Y_Axis, [""])
linearpattern2.Mode = "offset"
linearpattern2.Offset = Q("1.124 in")
linearpattern2.Occurrences = 2
linearpattern2.Reversed = True
body.Tip = linearpattern2
doc.recompute()

linearpattern3 = doc.addObject("PartDesign::LinearPattern", "LinearPattern002")
body.addObject(linearpattern3)
linearpattern3.Originals = [groove10]
linearpattern3.Direction = (doc.Z_Axis, [""])
linearpattern3.Mode = "offset"
linearpattern3.Offset = Q("1.624 in")
linearpattern3.Occurrences = 2
linearpattern3.Reversed = True
body.Tip = linearpattern3
doc.recompute()

datumline2 = doc.addObject("PartDesign::Line", "DatumLine001")
body.addObject(datumline2)
datumline2.Placement = App.Placement(App.Vector(0, 0, 0), App.Rotation(App.Vector(0, 0, 1), App.Vector(0, -0.569104659, -0.822265095)))
linearpattern4 = doc.addObject("PartDesign::LinearPattern", "LinearPattern003")
body.addObject(linearpattern4)
linearpattern4.Originals = [groove10]
linearpattern4.Direction = (datumline2, [""])
linearpattern4.Mode = "offset"
linearpattern4.Offset = 50.165817
linearpattern4.Occurrences = 2
body.Tip = linearpattern4

sketch19 = doc.addObject("Sketcher::SketchObject", "Sketch018")
body.addObject(sketch19)
sketch19.AttachmentSupport = (doc.YZ_Plane, [""])
sketch19.MapMode = "FlatFace"
sketch19.AttachmentOffset = App.Placement(App.Vector(0, 0, -1.145 * 25.4), App.Rotation())
sketch19.addGeometry(Part.Circle(App.Vector(-28.575, 14.2748, 0), App.Vector(0, 0, 1), 4.8006), False)
sketch19.addConstraint(Sketcher.Constraint("Diameter", 0, Q("0.378 in")))
sketch19.addConstraint(Sketcher.Constraint("DistanceX", 0, 3, -1, 1, Q("1.125 in")))
sketch19.addConstraint(Sketcher.Constraint("DistanceY", -1, 1, 0, 3, Q("0.562 in")))
pad4 = doc.addObject("PartDesign::Pad", "Pad003")
body.addObject(pad4)
pad4.Profile = sketch19
pad4.Length = Q("0.105 in")
pad4.Reversed = True
body2 = doc.addObject("PartDesign::Body", "Body001")

sketch20 = doc.addObject("Sketcher::SketchObject", "Sketch019")
body2.addObject(sketch20)
sketch20.AttachmentSupport = (doc.getObject("XZ_Plane001"), [""])
sketch20.MapMode = "FlatFace"
sketch20.AttachmentOffset = App.Placement(App.Vector(0, 0, 1.125 * 25.4), App.Rotation())
sketch20.addGeometry(Part.Circle(App.Vector(-0.9017, -20.447, 0), App.Vector(0, 0, 1), 1.7653), False)
sketch20.addGeometry(Part.LineSegment(App.Vector(-0.9017, -14.2748, 0), App.Vector(9.0983, -14.2748, 0)), True)
sketch20.addConstraint(Sketcher.Constraint("Horizontal", 1))
sketch20.addConstraint(Sketcher.Constraint("Vertical", 0, 3, 1, 1))
sketch20.addConstraint(Sketcher.Constraint("Diameter", 0, Q("0.139 in")))
sketch20.addConstraint(Sketcher.Constraint("DistanceY", 0, 3, -1, 1, Q("0.805 in")))
sketch20.addConstraint(Sketcher.Constraint("DistanceY", 1, 1, -1, 1, Q("0.562 in")))
sketch20.addConstraint(Sketcher.Constraint("DistanceX", 1, 1, 1, 2, 10.0))
sketch20.addConstraint(Sketcher.Constraint("DistanceX", 0, 3, -1, 1, Q("0.0355 in")))
revolution2 = doc.addObject("PartDesign::Revolution", "Revolution001")
body2.addObject(revolution2)
revolution2.Profile = sketch20
revolution2.ReferenceAxis = (sketch20, ["Axis0"])
revolution2.Angle = 360
body3 = doc.addObject("PartDesign::Body", "Body002")

sketch21 = doc.addObject("Sketcher::SketchObject", "Sketch020")
body3.addObject(sketch21)
sketch21.AttachmentSupport = (doc.getObject("XZ_Plane002"), [""])
sketch21.MapMode = "FlatFace"
sketch21.AttachmentOffset = App.Placement(App.Vector(0, 0, 1.125 * 25.4), App.Rotation())
sketch21.addGeometry(Part.Circle(App.Vector(-30.8483, -20.447, 0), App.Vector(0, 0, 1), 1.7653), False)
sketch21.addGeometry(Part.LineSegment(App.Vector(-30.8483, -14.2748, 0), App.Vector(-20.8483, -14.2748, 0)), True)
sketch21.addConstraint(Sketcher.Constraint("Horizontal", 1))
sketch21.addConstraint(Sketcher.Constraint("Vertical", 0, 3, 1, 1))
sketch21.addConstraint(Sketcher.Constraint("Diameter", 0, Q("0.139 in")))
sketch21.addConstraint(Sketcher.Constraint("DistanceY", 0, 3, -1, 1, Q("0.805 in")))
sketch21.addConstraint(Sketcher.Constraint("DistanceY", 1, 1, -1, 1, Q("0.562 in")))
sketch21.addConstraint(Sketcher.Constraint("DistanceX", 1, 1, 1, 2, 10.0))
sketch21.addConstraint(Sketcher.Constraint("DistanceX", 0, 3, -1, 1, Q("1.2145 in")))
revolution3 = doc.addObject("PartDesign::Revolution", "Revolution002")
body3.addObject(revolution3)
revolution3.Profile = sketch21
revolution3.ReferenceAxis = (sketch21, ["Axis0"])
revolution3.Angle = 360

doc.recompute()
